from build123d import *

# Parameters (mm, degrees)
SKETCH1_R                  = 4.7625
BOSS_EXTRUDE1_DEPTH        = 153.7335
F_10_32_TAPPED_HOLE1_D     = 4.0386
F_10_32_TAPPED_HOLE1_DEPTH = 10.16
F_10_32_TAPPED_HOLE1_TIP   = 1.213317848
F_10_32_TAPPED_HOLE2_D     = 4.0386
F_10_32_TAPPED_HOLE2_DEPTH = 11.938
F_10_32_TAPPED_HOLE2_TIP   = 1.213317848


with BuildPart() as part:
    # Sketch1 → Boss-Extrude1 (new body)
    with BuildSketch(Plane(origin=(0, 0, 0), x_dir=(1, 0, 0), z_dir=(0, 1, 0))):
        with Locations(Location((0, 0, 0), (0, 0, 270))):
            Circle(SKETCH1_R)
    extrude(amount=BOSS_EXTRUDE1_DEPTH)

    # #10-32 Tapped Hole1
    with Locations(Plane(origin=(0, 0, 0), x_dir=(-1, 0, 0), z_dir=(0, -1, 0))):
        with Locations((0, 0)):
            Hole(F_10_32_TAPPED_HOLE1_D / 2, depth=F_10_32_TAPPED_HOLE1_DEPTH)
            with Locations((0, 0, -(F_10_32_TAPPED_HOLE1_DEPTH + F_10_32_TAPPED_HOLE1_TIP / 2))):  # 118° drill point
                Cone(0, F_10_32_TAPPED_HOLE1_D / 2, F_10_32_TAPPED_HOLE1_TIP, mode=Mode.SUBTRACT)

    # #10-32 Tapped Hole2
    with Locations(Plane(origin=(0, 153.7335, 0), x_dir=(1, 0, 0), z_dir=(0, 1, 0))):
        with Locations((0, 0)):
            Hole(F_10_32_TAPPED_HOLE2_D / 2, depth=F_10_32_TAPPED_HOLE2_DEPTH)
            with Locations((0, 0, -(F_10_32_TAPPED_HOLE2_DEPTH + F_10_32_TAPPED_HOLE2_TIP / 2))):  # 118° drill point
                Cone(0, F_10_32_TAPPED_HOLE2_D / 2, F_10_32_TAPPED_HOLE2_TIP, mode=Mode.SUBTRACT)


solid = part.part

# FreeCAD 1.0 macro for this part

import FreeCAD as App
import Part
import Sketcher
from FreeCAD import Vector
Q = App.Units.Quantity

doc = App.newDocument("Part")
params = doc.addObject("Spreadsheet::Sheet", "Params")
for row, (alias, value) in enumerate([
    ("sketch1_diameter", "0.375 in"),
    ("pad1_length", "6.0525 in"),
    ("sketch2_diameter", "0.159 in"),
    ("hole_diameter", "0.159 in"),
    ("hole_depth", "0.4 in"),
    ("sketch3_diameter", "0.159 in"),
    ("hole2_diameter", "0.159 in"),
    ("hole2_depth", "0.47 in"),
], start=1):
    params.set(f"A{row}", alias)
    params.set(f"B{row}", "=" + value)
    params.setAlias(f"B{row}", alias)

body = doc.addObject("PartDesign::Body", "Body")

sketch1 = body.newObject("Sketcher::SketchObject", "Sketch")
sketch1.AttachmentSupport = (doc.getObject("XZ_Plane"), [""])
sketch1.MapMode = "FlatFace"
sketch1.addGeometry(Part.Circle(Vector(0, 0, 0), Vector(0, 0, 1), 4.8), False)
sketch1.addConstraint([
    Sketcher.Constraint("Coincident", 0, 3, -1, 1),
    Sketcher.Constraint("Diameter", 0, Q("0.375 in")),
])
sketch1.setExpression("Constraints[1]", "Params.sketch1_diameter")
pad1 = body.newObject("PartDesign::Pad", "Pad")
pad1.Profile = sketch1
pad1.setExpression("Length", "Params.pad1_length")
pad1.Reversed = True

sketch2 = body.newObject("Sketcher::SketchObject", "Sketch001")
sketch2.AttachmentSupport = (doc.getObject("XZ_Plane"), [""])
sketch2.MapMode = "FlatFace"
sketch2.addGeometry(Part.Circle(Vector(0, 0, 0), Vector(0, 0, 1), 2), False)
sketch2.addConstraint([
    Sketcher.Constraint("Coincident", 0, 3, -1, 1),
    Sketcher.Constraint("Diameter", 0, Q("0.159 in")),
])
sketch2.setExpression("Constraints[1]", "Params.sketch2_diameter")
doc.recompute()
hole = body.newObject("PartDesign::Hole", "Hole")
hole.Profile = sketch2
hole.ThreadType = "None"
hole.setExpression("Diameter", "Params.hole_diameter")
hole.DepthType = "Dimension"
hole.setExpression("Depth", "Params.hole_depth")
hole.DrillPoint = "Angled"
hole.DrillPointAngle = 118

sketch3 = body.newObject("Sketcher::SketchObject", "Sketch002")
sketch3.AttachmentSupport = (doc.getObject("XZ_Plane"), [""])
sketch3.MapMode = "FlatFace"
sketch3.AttachmentOffset = App.Placement(Vector(0, 0, -6.0525 * 25.4), App.Rotation())
sketch3.addGeometry(Part.Circle(Vector(0, 0, 0), Vector(0, 0, 1), 2), False)
sketch3.addConstraint([
    Sketcher.Constraint("Coincident", 0, 3, -1, 1),
    Sketcher.Constraint("Diameter", 0, Q("0.159 in")),
])
sketch3.setExpression("Constraints[1]", "Params.sketch3_diameter")
doc.recompute()
hole2 = body.newObject("PartDesign::Hole", "Hole001")
hole2.Profile = sketch3
hole2.ThreadType = "None"
hole2.setExpression("Diameter", "Params.hole2_diameter")
hole2.DepthType = "Dimension"
hole2.setExpression("Depth", "Params.hole2_depth")
hole2.DrillPoint = "Angled"
hole2.DrillPointAngle = 118
hole2.Reversed = True

doc.recompute()
